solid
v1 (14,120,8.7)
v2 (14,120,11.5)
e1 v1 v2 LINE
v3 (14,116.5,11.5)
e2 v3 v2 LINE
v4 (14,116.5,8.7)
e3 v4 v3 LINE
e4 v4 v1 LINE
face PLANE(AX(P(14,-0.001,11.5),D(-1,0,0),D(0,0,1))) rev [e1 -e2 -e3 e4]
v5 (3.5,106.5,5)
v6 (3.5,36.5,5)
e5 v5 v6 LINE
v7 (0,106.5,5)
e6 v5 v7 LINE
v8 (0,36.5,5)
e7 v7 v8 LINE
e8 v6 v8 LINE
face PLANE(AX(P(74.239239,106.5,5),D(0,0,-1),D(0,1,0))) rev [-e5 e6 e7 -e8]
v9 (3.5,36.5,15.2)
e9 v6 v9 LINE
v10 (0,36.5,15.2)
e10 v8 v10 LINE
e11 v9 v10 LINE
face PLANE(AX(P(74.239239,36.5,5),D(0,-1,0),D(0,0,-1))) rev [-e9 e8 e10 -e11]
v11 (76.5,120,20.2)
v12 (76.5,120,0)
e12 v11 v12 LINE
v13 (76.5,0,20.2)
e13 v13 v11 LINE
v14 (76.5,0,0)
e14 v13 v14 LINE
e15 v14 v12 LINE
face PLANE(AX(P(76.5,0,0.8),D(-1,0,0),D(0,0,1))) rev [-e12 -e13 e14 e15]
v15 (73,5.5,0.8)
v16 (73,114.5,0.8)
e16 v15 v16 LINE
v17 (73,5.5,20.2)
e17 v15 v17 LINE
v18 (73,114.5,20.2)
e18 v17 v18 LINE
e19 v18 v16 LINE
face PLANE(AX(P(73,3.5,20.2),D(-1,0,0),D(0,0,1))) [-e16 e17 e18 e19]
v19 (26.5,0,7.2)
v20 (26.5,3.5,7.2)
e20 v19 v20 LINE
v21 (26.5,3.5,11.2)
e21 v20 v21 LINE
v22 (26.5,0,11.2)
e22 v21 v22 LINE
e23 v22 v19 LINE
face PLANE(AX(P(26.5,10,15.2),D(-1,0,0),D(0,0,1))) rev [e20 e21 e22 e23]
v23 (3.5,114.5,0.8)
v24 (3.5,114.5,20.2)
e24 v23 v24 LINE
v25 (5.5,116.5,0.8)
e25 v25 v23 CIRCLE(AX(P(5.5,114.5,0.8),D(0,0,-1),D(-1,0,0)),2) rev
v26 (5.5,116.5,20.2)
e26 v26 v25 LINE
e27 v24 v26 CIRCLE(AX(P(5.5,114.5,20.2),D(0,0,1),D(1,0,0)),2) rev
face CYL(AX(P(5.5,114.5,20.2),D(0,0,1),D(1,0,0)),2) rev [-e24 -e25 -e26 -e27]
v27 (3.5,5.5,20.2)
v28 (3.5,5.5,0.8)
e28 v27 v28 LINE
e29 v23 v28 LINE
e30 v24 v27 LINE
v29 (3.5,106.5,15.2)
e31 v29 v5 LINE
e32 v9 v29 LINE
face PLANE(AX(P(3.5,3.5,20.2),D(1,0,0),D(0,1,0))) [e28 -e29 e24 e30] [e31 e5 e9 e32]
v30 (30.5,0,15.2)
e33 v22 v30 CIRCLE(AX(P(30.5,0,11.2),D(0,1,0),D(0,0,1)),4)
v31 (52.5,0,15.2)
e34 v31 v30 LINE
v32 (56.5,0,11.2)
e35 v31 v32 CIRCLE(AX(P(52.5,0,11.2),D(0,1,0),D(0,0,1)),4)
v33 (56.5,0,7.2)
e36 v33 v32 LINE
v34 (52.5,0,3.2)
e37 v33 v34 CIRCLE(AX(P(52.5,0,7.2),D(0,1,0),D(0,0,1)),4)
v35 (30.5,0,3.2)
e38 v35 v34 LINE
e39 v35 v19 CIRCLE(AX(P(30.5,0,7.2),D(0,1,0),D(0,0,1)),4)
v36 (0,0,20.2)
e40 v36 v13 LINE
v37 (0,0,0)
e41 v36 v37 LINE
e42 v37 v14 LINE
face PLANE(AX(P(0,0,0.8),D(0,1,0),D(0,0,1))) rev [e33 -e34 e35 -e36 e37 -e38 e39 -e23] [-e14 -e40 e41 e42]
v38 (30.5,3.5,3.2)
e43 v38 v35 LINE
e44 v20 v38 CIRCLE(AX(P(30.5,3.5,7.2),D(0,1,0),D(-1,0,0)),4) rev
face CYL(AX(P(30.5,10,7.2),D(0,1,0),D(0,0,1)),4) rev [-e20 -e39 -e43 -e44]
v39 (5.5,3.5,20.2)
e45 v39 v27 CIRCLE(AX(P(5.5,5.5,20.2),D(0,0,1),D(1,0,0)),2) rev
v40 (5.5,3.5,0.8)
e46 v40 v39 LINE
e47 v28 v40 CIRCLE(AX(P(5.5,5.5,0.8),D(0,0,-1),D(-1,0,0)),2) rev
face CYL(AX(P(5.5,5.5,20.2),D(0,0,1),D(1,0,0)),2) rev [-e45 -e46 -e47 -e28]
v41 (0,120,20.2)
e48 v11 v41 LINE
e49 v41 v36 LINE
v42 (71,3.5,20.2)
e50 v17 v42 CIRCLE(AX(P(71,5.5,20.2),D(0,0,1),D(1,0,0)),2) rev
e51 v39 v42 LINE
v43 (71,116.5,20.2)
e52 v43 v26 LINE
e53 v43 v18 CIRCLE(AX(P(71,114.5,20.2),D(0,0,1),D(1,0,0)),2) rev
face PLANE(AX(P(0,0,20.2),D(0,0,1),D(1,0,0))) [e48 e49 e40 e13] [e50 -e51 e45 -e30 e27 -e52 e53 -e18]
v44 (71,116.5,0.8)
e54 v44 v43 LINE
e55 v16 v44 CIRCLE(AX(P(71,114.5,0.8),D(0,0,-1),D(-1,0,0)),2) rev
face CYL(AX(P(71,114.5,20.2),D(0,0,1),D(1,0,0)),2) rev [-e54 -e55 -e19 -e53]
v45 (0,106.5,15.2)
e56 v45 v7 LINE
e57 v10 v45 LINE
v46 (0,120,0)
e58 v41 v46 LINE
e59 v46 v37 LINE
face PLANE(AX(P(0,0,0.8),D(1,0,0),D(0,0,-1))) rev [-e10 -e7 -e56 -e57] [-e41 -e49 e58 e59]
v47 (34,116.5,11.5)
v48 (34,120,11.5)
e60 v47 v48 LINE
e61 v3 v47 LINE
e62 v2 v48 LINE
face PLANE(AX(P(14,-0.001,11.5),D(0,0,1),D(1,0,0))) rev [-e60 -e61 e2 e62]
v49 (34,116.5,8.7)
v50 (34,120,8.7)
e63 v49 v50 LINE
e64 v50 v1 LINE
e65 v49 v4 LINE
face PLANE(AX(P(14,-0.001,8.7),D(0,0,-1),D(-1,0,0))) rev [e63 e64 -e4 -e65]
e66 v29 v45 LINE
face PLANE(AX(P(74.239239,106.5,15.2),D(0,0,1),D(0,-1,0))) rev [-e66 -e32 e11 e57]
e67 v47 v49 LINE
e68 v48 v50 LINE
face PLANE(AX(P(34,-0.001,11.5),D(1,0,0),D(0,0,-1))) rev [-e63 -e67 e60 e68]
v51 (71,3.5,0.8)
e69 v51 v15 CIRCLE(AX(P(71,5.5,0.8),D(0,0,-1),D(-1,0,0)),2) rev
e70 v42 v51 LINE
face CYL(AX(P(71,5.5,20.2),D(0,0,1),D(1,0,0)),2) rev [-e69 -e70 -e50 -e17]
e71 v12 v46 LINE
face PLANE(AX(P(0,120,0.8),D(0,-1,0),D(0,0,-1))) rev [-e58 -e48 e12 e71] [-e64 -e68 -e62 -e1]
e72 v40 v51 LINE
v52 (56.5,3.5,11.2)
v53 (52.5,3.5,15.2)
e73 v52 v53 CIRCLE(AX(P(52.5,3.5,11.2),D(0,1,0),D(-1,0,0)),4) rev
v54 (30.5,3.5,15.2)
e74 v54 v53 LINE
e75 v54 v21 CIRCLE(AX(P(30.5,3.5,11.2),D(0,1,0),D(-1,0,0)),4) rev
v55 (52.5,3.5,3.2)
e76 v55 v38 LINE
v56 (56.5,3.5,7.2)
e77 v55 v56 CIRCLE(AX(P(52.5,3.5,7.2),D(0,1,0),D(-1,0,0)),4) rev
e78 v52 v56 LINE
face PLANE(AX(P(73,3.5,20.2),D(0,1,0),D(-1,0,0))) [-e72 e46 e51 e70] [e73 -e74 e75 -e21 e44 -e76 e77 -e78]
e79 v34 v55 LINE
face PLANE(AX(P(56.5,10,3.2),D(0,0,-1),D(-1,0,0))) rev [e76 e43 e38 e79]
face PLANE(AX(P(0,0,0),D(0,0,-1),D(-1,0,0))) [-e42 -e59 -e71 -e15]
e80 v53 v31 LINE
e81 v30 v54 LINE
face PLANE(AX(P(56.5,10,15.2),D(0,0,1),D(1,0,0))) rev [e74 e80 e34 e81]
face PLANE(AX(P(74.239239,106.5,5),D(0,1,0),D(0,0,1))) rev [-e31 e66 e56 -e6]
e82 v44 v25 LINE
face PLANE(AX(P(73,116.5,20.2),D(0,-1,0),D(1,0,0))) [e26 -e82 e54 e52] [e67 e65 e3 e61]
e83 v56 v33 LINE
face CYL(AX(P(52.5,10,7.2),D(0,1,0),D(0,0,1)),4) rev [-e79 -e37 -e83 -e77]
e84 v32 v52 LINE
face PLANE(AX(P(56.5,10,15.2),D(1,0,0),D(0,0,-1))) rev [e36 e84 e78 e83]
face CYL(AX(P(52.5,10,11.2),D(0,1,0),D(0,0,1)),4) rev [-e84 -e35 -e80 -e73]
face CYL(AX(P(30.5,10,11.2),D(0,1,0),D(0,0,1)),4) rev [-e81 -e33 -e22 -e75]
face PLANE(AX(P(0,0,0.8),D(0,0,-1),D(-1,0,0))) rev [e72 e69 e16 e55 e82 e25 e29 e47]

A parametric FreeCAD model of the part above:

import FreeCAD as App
import Part
import Sketcher

V = App.Vector


def edges_at(feature, points):
    """Names of the edges that pass closest to the given points."""
    edges = feature.Shape.Edges
    near = lambda p: min(range(len(edges)), key=lambda i: edges[i].distToShape(Part.Vertex(*p))[0])
    return sorted({f"Edge{near(p) + 1}" for p in points})

doc = App.newDocument("Part")
body = doc.addObject("PartDesign::Body", "Body")

# Sketch on XY plane
sketch1 = body.newObject("Sketcher::SketchObject", "Sketch")
sketch1.AttachmentSupport = (doc.getObject("XY_Plane"), [""])
sketch1.MapMode = "FlatFace"
sketch1.addGeometry(Part.LineSegment(V(0, 120, 0), V(0, 0, 0)), False)
sketch1.addGeometry(Part.LineSegment(V(0, 0, 0), V(76, 0, 0)), False)
sketch1.addGeometry(Part.LineSegment(V(76, 0, 0), V(76, 120, 0)), False)
sketch1.addGeometry(Part.LineSegment(V(76, 120, 0), V(0, 120, 0)), False)
sketch1.addConstraint(Sketcher.Constraint("Coincident", 0, 2, 1, 1))
sketch1.addConstraint(Sketcher.Constraint("Coincident", 1, 2, 2, 1))
sketch1.addConstraint(Sketcher.Constraint("Coincident", 2, 2, 3, 1))
sketch1.addConstraint(Sketcher.Constraint("Coincident", 3, 2, 0, 1))
sketch1.addConstraint(Sketcher.Constraint("Vertical", 0))
sketch1.addConstraint(Sketcher.Constraint("Horizontal", 1))
sketch1.addConstraint(Sketcher.Constraint("Vertical", 2))
sketch1.addConstraint(Sketcher.Constraint("Horizontal", 3))
sketch1.addConstraint(Sketcher.Constraint("Coincident", 0, 2, -1, 1))
sketch1.addConstraint(Sketcher.Constraint("DistanceY", 0, 2, 0, 1, 120.0))
sketch1.addConstraint(Sketcher.Constraint("DistanceX", 1, 1, 1, 2, 76.5))
pad1 = body.newObject("PartDesign::Pad", "Pad")
pad1.Profile = sketch1
pad1.Length = 0.8

# Sketch on XY plane
sketch2 = body.newObject("Sketcher::SketchObject", "Sketch001")
sketch2.AttachmentSupport = (doc.getObject("XY_Plane"), [""])
sketch2.MapMode = "FlatFace"
sketch2.AttachmentOffset = App.Placement(V(0, 0, 0.8), App.Rotation())
sketch2.addGeometry(Part.LineSegment(V(0, 120, 0), V(0, 0, 0)), False)
sketch2.addGeometry(Part.LineSegment(V(0, 0, 0), V(76, 0, 0)), False)
sketch2.addGeometry(Part.LineSegment(V(76, 0, 0), V(76, 120, 0)), False)
sketch2.addGeometry(Part.LineSegment(V(76, 120, 0), V(0, 120, 0)), False)
sketch2.addGeometry(Part.LineSegment(V(73, 4, 0), V(4, 4, 0)), False)
sketch2.addGeometry(Part.LineSegment(V(4, 4, 0), V(4, 116, 0)), False)
sketch2.addGeometry(Part.LineSegment(V(4, 116, 0), V(73, 116, 0)), False)
sketch2.addGeometry(Part.LineSegment(V(73, 116, 0), V(73, 4, 0)), False)
sketch2.addConstraint(Sketcher.Constraint("Coincident", 0, 2, 1, 1))
sketch2.addConstraint(Sketcher.Constraint("Coincident", 1, 2, 2, 1))
sketch2.addConstraint(Sketcher.Constraint("Coincident", 2, 2, 3, 1))
sketch2.addConstraint(Sketcher.Constraint("Coincident", 3, 2, 0, 1))
sketch2.addConstraint(Sketcher.Constraint("Coincident", 4, 2, 5, 1))
sketch2.addConstraint(Sketcher.Constraint("Coincident", 5, 2, 6, 1))
sketch2.addConstraint(Sketcher.Constraint("Coincident", 6, 2, 7, 1))
sketch2.addConstraint(Sketcher.Constraint("Coincident", 7, 2, 4, 1))
sketch2.addConstraint(Sketcher.Constraint("Vertical", 0))
sketch2.addConstraint(Sketcher.Constraint("Horizontal", 1))
sketch2.addConstraint(Sketcher.Constraint("Vertical", 2))
sketch2.addConstraint(Sketcher.Constraint("Horizontal", 3))
sketch2.addConstraint(Sketcher.Constraint("Horizontal", 4))
sketch2.addConstraint(Sketcher.Constraint("Vertical", 5))
sketch2.addConstraint(Sketcher.Constraint("Horizontal", 6))
sketch2.addConstraint(Sketcher.Constraint("Vertical", 7))
sketch2.addConstraint(Sketcher.Constraint("Coincident", 0, 2, -1, 1))
sketch2.addConstraint(Sketcher.Constraint("DistanceY", 0, 2, 0, 1, 120.0))
sketch2.addConstraint(Sketcher.Constraint("DistanceY", 5, 1, 5, 2, 113.0))
sketch2.addConstraint(Sketcher.Constraint("DistanceX", 1, 1, 1, 2, 76.5))
sketch2.addConstraint(Sketcher.Constraint("DistanceX", 4, 2, 4, 1, 69.5))
sketch2.addConstraint(Sketcher.Constraint("DistanceX", -1, 1, 6, 2, 73.0))
sketch2.addConstraint(Sketcher.Constraint("DistanceY", -1, 1, 4, 2, 3.5))
pad2 = body.newObject("PartDesign::Pad", "Pad001")
pad2.Profile = sketch2
pad2.Length = 19.4
doc.recompute()

fillet = body.newObject("PartDesign::Fillet", "Fillet")
fillet.Base = (pad2, edges_at(pad2, [
    (73, 116.5, 10.5),
    (3.5, 116.5, 10.5),
    (3.5, 3.5, 10.5),
    (73, 3.5, 10.5),
]))
fillet.Radius = 2

# Sketch on YZ plane
sketch3 = body.newObject("Sketcher::SketchObject", "Sketch002")
sketch3.AttachmentSupport = (doc.getObject("YZ_Plane"), [""])
sketch3.MapMode = "FlatFace"
sketch3.addGeometry(Part.LineSegment(V(106, 5, 0), V(36, 5, 0)), False)
sketch3.addGeometry(Part.LineSegment(V(36, 5, 0), V(36, 15, 0)), False)
sketch3.addGeometry(Part.LineSegment(V(36, 15, 0), V(106, 15, 0)), False)
sketch3.addGeometry(Part.LineSegment(V(106, 15, 0), V(106, 5, 0)), False)
sketch3.addConstraint(Sketcher.Constraint("Coincident", 0, 2, 1, 1))
sketch3.addConstraint(Sketcher.Constraint("Coincident", 1, 2, 2, 1))
sketch3.addConstraint(Sketcher.Constraint("Coincident", 2, 2, 3, 1))
sketch3.addConstraint(Sketcher.Constraint("Coincident", 3, 2, 0, 1))
sketch3.addConstraint(Sketcher.Constraint("Horizontal", 0))
sketch3.addConstraint(Sketcher.Constraint("Vertical", 1))
sketch3.addConstraint(Sketcher.Constraint("Horizontal", 2))
sketch3.addConstraint(Sketcher.Constraint("Vertical", 3))
sketch3.addConstraint(Sketcher.Constraint("DistanceX", 0, 2, 0, 1, 70.0))
sketch3.addConstraint(Sketcher.Constraint("DistanceY", 1, 1, 1, 2, 10.2))
sketch3.addConstraint(Sketcher.Constraint("DistanceY", -1, 1, 0, 2, 5.0))
sketch3.addConstraint(Sketcher.Constraint("DistanceX", -1, 1, 0, 2, 36.5))
pocket1 = body.newObject("PartDesign::Pocket", "Pocket")
pocket1.Profile = sketch3
pocket1.Length = 3.5
pocket1.Reversed = True

# Sketch on XZ plane
sketch4 = body.newObject("Sketcher::SketchObject", "Sketch003")
sketch4.AttachmentSupport = (doc.getObject("XZ_Plane"), [""])
sketch4.MapMode = "FlatFace"
sketch4.addGeometry(Part.LineSegment(V(56, 3, 0), V(56, 15, 0)), False)
sketch4.addGeometry(Part.LineSegment(V(56, 15, 0), V(26, 15, 0)), False)
sketch4.addGeometry(Part.LineSegment(V(26, 15, 0), V(26, 3, 0)), False)
sketch4.addGeometry(Part.LineSegment(V(26, 3, 0), V(56, 3, 0)), False)
sketch4.addConstraint(Sketcher.Constraint("Coincident", 0, 2, 1, 1))
sketch4.addConstraint(Sketcher.Constraint("Coincident", 1, 2, 2, 1))
sketch4.addConstraint(Sketcher.Constraint("Coincident", 2, 2, 3, 1))
sketch4.addConstraint(Sketcher.Constraint("Coincident", 3, 2, 0, 1))
sketch4.addConstraint(Sketcher.Constraint("Vertical", 0))
sketch4.addConstraint(Sketcher.Constraint("Horizontal", 1))
sketch4.addConstraint(Sketcher.Constraint("Vertical", 2))
sketch4.addConstraint(Sketcher.Constraint("Horizontal", 3))
sketch4.addConstraint(Sketcher.Constraint("DistanceX", 1, 2, 1, 1, 30.0))
sketch4.addConstraint(Sketcher.Constraint("DistanceY", 0, 1, 0, 2, 12.0))
sketch4.addConstraint(Sketcher.Constraint("DistanceX", -1, 1, 0, 2, 56.5))
sketch4.addConstraint(Sketcher.Constraint("DistanceY", -1, 1, 0, 2, 15.2))
pocket2 = body.newObject("PartDesign::Pocket", "Pocket001")
pocket2.Profile = sketch4
pocket2.Length = 10
doc.recompute()

fillet2 = body.newObject("PartDesign::Fillet", "Fillet001")
fillet2.Base = (pocket2, edges_at(pocket2, [
    (56.5, 1.75, 15.2),
    (56.5, 1.75, 3.2),
    (26.5, 1.75, 3.2),
    (26.5, 1.75, 15.2),
]))
fillet2.Radius = 4

# Sketch on XZ plane
sketch5 = body.newObject("Sketcher::SketchObject", "Sketch004")
sketch5.AttachmentSupport = (doc.getObject("XZ_Plane"), [""])
sketch5.MapMode = "FlatFace"
sketch5.AttachmentOffset = App.Placement(V(0, 0, -120), App.Rotation())
sketch5.addGeometry(Part.LineSegment(V(14, 8.7, 0), V(14, 11.5, 0)), False)
sketch5.addGeometry(Part.LineSegment(V(14, 11.5, 0), V(34, 11.5, 0)), False)
sketch5.addGeometry(Part.LineSegment(V(34, 11.5, 0), V(34, 8.7, 0)), False)
sketch5.addGeometry(Part.LineSegment(V(34, 8.7, 0), V(14, 8.7, 0)), False)
sketch5.addConstraint(Sketcher.Constraint("Coincident", 0, 2, 1, 1))
sketch5.addConstraint(Sketcher.Constraint("Coincident", 1, 2, 2, 1))
sketch5.addConstraint(Sketcher.Constraint("Coincident", 2, 2, 3, 1))
sketch5.addConstraint(Sketcher.Constraint("Coincident", 3, 2, 0, 1))
sketch5.addConstraint(Sketcher.Constraint("Vertical", 0))
sketch5.addConstraint(Sketcher.Constraint("Horizontal", 1))
sketch5.addConstraint(Sketcher.Constraint("Vertical", 2))
sketch5.addConstraint(Sketcher.Constraint("Horizontal", 3))
sketch5.addConstraint(Sketcher.Constraint("DistanceX", 1, 1, 1, 2, 20.0))
sketch5.addConstraint(Sketcher.Constraint("DistanceY", 0, 1, 0, 2, 2.8))
sketch5.addConstraint(Sketcher.Constraint("DistanceX", -1, 1, 0, 2, 14.0))
sketch5.addConstraint(Sketcher.Constraint("DistanceY", -1, 1, 0, 2, 11.5))
pocket3 = body.newObject("PartDesign::Pocket", "Pocket002")
pocket3.Profile = sketch5
pocket3.Type = "UpToFirst"
pocket3.Reversed = True

doc.recompute()
